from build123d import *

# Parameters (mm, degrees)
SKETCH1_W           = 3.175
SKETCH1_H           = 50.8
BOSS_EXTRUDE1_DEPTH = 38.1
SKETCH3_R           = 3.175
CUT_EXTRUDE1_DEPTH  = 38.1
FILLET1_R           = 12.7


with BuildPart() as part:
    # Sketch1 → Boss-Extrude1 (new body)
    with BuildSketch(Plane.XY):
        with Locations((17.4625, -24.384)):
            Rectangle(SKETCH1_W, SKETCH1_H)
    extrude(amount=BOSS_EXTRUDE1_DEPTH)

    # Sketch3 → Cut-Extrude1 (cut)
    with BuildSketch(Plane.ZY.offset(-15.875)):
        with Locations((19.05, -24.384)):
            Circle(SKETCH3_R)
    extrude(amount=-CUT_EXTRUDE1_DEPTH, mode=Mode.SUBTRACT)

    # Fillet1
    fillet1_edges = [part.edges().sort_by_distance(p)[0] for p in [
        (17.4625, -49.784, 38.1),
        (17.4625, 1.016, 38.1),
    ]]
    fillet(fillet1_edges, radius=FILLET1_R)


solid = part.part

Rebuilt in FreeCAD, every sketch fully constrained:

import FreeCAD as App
import Part
import Sketcher

V = App.Vector
Q = App.Units.Quantity


def edges_at(feature, points):
    """Names of the edges that pass closest to the given points."""
    edges = feature.Shape.Edges
    near = lambda p: min(range(len(edges)), key=lambda i: edges[i].distToShape(Part.Vertex(*p))[0])
    return sorted({f"Edge{near(p) + 1}" for p in points})


def add_polygon(sketch, points):
    """Adds a closed chain of lines whose ends are joined by coincident constraints."""
    first, n = sketch.GeometryCount, len(points)
    for a, b in zip(points, points[1:] + points[:1]):
        sketch.addGeometry(Part.LineSegment(App.Vector(*a, 0), App.Vector(*b, 0)), False)
    for i in range(n):
        sketch.addConstraint(Sketcher.Constraint("Coincident", first + i, 2, first + (i + 1) % n, 1))

doc = App.newDocument("Part")
body = doc.addObject("PartDesign::Body", "Body")

sketch1 = body.newObject("Sketcher::SketchObject", "Sketch")
sketch1.AttachmentSupport = (doc.getObject("XY_Plane"), [""])
sketch1.MapMode = "FlatFace"
add_polygon(sketch1, [(15.9, 1), (15.9, -49.8), (19.1, -49.8), (19.1, 1)])
sketch1.addConstraint([
    Sketcher.Constraint("Vertical", 0),
    Sketcher.Constraint("Horizontal", 1),
    Sketcher.Constraint("Vertical", 2),
    Sketcher.Constraint("Horizontal", 3),
    Sketcher.Constraint("DistanceY", 0, 2, 0, 1, Q("2 in")),
    Sketcher.Constraint("DistanceX", 1, 1, 1, 2, Q("0.125 in")),
    Sketcher.Constraint("DistanceY", 0, 2, -1, 1, Q("1.96 in")),
    Sketcher.Constraint("DistanceX", -1, 1, 1, 2, Q("0.75 in")),
])
pad1 = body.newObject("PartDesign::Pad", "Pad")
pad1.Profile = sketch1
pad1.Length = Q("1.5 in")

sketch2 = body.newObject("Sketcher::SketchObject", "Sketch001")
sketch2.AttachmentSupport = (doc.getObject("YZ_Plane"), [""])
sketch2.MapMode = "FlatFace"
sketch2.AttachmentOffset = App.Placement(V(0, 0, 0.625 * 25.4), App.Rotation())
sketch2.addGeometry(Part.Circle(V(-24.4, 19.1, 0), V(0, 0, 1), 3.2), False)
sketch2.addConstraint([
    Sketcher.Constraint("Diameter", 0, Q("0.25 in")),
    Sketcher.Constraint("DistanceX", 0, 3, -1, 1, Q("0.96 in")),
    Sketcher.Constraint("DistanceY", -1, 1, 0, 3, Q("0.75 in")),
])
pocket1 = body.newObject("PartDesign::Pocket", "Pocket")
pocket1.Profile = sketch2
pocket1.Length = Q("1.5 in")
pocket1.Reversed = True
doc.recompute()

fillet = body.newObject("PartDesign::Fillet", "Fillet")
fillet.Base = (pocket1, edges_at(pocket1, [(17.462, -49.784, 38.1), (17.462, 1.016, 38.1)]))
fillet.Radius = Q("0.5 in")

doc.recompute()
